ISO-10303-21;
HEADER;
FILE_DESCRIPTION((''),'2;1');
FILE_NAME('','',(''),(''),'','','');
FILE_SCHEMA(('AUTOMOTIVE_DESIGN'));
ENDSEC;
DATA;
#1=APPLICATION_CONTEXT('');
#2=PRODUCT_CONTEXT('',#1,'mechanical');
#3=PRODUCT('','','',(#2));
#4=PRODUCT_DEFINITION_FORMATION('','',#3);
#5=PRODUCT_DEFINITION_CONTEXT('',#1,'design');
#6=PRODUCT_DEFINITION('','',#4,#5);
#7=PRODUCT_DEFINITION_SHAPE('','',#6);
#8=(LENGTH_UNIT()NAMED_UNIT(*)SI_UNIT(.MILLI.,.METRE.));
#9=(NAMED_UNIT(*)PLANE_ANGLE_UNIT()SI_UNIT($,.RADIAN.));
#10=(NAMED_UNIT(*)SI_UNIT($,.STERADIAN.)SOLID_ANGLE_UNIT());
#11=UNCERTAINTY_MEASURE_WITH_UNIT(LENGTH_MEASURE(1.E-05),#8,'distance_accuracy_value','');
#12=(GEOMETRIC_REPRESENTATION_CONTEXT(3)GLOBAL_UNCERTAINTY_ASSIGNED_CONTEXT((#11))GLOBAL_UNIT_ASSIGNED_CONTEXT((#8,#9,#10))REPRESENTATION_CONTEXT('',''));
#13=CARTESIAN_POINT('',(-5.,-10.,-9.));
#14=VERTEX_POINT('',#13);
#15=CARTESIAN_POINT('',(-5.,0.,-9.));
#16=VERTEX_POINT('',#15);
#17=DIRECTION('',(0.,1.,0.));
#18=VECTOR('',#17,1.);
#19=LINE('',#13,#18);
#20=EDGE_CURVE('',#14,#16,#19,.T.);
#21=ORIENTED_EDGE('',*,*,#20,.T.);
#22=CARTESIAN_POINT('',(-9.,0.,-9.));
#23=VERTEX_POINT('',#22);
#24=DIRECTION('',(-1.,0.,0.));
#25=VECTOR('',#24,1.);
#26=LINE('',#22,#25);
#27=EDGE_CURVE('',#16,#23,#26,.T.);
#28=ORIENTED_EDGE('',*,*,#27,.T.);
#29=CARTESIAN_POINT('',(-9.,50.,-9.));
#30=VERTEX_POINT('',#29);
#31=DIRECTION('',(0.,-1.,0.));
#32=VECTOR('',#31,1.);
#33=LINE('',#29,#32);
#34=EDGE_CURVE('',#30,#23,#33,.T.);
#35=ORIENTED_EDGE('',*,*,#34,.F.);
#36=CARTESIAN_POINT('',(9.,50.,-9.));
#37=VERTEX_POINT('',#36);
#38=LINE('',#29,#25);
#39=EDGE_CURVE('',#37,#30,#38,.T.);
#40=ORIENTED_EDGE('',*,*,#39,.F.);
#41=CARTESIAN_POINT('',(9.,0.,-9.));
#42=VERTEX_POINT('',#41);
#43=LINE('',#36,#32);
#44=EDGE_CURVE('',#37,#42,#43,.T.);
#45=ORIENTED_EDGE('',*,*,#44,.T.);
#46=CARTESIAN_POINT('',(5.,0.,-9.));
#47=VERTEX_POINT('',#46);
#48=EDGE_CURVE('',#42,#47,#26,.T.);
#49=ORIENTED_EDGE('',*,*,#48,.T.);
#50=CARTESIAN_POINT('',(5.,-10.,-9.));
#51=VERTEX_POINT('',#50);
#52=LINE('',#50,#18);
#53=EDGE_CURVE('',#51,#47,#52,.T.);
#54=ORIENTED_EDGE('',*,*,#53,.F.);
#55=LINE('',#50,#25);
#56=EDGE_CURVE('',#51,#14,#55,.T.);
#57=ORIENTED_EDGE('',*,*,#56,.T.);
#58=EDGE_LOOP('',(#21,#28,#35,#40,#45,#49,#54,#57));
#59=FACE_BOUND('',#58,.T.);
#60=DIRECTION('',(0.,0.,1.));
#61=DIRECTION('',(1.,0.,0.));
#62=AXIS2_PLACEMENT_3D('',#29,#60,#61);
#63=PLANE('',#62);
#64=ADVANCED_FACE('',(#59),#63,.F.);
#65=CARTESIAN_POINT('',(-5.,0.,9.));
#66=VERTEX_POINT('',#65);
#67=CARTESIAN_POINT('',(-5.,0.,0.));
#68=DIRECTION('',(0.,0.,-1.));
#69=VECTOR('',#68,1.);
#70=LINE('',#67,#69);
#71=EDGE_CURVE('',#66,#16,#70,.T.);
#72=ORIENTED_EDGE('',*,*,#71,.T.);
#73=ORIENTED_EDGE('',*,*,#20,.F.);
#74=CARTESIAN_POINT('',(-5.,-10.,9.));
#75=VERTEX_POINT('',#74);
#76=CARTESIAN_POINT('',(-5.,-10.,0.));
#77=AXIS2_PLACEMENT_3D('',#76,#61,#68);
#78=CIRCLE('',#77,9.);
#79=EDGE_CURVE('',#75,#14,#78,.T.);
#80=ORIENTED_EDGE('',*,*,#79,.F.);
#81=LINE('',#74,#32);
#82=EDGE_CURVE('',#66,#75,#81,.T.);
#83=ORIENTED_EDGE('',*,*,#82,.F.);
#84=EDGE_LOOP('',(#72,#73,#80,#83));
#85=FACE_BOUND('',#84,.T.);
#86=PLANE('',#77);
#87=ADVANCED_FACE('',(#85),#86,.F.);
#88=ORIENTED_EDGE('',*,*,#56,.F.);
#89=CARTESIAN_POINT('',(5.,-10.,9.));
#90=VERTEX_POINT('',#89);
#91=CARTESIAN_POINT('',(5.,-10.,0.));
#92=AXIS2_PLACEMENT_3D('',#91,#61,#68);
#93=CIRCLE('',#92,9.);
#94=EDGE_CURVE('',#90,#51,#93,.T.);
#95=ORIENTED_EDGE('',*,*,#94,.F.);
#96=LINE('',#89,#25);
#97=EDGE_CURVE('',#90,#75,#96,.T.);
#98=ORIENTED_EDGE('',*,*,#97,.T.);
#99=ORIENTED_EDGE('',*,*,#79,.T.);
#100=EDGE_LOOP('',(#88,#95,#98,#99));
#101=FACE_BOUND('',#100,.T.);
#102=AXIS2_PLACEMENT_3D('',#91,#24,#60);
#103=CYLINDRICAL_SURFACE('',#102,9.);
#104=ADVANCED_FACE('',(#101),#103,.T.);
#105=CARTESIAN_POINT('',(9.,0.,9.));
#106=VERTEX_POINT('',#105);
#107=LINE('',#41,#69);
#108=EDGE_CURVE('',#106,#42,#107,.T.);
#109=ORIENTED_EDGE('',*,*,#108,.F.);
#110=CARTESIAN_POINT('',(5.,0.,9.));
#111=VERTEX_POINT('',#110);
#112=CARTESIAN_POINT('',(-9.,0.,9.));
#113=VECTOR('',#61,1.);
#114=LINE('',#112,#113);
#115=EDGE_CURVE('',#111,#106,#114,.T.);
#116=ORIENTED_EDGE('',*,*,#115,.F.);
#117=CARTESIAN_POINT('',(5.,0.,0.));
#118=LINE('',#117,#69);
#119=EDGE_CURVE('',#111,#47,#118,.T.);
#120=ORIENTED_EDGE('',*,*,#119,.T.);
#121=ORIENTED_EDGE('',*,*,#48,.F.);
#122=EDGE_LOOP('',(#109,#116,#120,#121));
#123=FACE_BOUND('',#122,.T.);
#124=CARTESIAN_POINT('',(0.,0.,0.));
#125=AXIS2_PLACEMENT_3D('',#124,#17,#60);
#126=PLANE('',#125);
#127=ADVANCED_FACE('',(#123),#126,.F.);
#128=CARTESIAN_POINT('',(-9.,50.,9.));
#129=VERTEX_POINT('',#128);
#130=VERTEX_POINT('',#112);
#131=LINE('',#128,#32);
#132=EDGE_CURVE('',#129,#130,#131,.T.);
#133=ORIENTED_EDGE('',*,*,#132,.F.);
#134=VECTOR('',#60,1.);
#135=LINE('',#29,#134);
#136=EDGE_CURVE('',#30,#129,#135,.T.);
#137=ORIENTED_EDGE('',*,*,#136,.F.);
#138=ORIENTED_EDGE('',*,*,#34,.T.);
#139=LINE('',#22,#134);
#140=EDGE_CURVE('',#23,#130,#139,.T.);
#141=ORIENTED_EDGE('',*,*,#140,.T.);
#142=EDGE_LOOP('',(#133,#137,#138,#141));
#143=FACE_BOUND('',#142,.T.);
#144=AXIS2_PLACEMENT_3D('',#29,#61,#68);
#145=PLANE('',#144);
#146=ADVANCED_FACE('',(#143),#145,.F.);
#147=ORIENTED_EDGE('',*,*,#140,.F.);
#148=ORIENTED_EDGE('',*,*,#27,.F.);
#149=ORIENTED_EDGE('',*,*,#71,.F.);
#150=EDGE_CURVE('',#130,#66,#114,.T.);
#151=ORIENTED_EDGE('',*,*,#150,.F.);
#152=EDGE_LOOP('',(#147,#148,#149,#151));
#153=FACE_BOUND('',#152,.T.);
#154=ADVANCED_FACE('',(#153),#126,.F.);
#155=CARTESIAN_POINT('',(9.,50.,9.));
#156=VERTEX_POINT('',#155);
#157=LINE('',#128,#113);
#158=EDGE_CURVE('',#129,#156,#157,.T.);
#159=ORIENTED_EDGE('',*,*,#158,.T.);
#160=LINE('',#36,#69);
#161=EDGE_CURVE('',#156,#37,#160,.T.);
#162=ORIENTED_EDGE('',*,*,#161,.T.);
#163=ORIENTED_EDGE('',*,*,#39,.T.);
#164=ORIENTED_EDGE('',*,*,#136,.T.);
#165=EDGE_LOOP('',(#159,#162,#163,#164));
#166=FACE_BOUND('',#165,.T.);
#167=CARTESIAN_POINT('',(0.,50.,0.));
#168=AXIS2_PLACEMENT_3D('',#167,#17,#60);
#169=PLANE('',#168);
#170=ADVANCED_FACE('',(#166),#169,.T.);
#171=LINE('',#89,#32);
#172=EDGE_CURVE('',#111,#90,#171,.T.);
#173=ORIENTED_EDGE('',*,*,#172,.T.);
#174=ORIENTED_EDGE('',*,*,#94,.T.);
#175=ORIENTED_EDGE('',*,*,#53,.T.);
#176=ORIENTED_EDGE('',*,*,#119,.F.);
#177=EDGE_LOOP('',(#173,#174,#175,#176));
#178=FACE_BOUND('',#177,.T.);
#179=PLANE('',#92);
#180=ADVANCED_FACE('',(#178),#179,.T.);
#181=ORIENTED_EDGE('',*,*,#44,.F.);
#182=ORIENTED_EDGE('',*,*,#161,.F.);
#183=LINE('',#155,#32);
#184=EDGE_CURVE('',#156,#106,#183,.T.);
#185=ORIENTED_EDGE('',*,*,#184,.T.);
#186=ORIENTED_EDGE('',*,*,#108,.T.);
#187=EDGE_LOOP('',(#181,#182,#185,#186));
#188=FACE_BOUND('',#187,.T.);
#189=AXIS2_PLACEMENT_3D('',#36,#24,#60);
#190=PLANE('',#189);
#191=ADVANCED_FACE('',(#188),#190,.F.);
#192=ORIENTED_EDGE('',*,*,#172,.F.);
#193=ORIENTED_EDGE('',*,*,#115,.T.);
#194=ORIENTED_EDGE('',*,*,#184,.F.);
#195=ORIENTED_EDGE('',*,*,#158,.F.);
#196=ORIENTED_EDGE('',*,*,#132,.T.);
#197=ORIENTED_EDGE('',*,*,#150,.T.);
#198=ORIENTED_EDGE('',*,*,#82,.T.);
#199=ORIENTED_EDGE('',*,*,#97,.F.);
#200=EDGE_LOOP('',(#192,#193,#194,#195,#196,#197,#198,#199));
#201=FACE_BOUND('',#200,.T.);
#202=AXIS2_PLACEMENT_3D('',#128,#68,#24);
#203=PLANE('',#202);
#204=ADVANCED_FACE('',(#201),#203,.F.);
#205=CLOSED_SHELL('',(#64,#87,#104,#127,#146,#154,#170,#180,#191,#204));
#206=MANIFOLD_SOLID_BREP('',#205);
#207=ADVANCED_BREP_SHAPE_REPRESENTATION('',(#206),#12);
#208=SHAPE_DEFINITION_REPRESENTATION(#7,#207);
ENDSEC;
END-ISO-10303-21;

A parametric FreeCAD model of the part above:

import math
import FreeCAD as App
import Part
import Sketcher
Q = App.Units.Quantity


def add_polygon(sketch, points):
    """Adds a closed chain of lines whose ends are joined by coincident constraints."""
    first, n = sketch.GeometryCount, len(points)
    for a, b in zip(points, points[1:] + points[:1]):
        sketch.addGeometry(Part.LineSegment(App.Vector(*a, 0), App.Vector(*b, 0)), False)
    for i in range(n):
        sketch.addConstraint(Sketcher.Constraint("Coincident", first + i, 2, first + (i + 1) % n, 1))

doc = App.newDocument("Part")
body = doc.addObject("PartDesign::Body", "Body")

# Sketch on XZ plane
sketch1 = body.newObject("Sketcher::SketchObject", "Sketch")
sketch1.AttachmentSupport = (doc.getObject("XZ_Plane"), [""])
sketch1.MapMode = "FlatFace"
add_polygon(sketch1, [(-9, -9), (-9, 9), (9, 9), (9, -9)])  # lines 0-3
sketch1.addConstraint([
    Sketcher.Constraint("Vertical", 0),
    Sketcher.Constraint("Horizontal", 1),
    Sketcher.Constraint("Vertical", 2),
    Sketcher.Constraint("Horizontal", 3),
    Sketcher.Constraint("Symmetric", 0, 2, 2, 2, -1, 1),
    Sketcher.Constraint("Equal", 3, 0),
    Sketcher.Constraint("DistanceX", 1, 1, 1, 2, Q("18 mm")),
])
pad1 = body.newObject("PartDesign::Pad", "Pad")
pad1.Profile = sketch1
pad1.Length = 50
pad1.Reversed = True

# Sketch on YZ plane
sketch2 = body.newObject("Sketcher::SketchObject", "Sketch001")
sketch2.AttachmentSupport = (doc.getObject("YZ_Plane"), [""])
sketch2.MapMode = "FlatFace"
sketch2.addGeometry([
    Part.LineSegment(App.Vector(1, 9, 0), App.Vector(-10, 9, 0)),
    Part.ArcOfCircle(Part.Circle(App.Vector(-10, 0, 0), App.Vector(0, 0, 1), 9), math.radians(90), math.radians(270)),
    Part.LineSegment(App.Vector(-10, -9, 0), App.Vector(1, -9, 0)),
    Part.LineSegment(App.Vector(1, -9, 0), App.Vector(1, 9, 0)),
], False)
sketch2.addConstraint([
    Sketcher.Constraint("Tangent", 0, 2, 1, 1),
    Sketcher.Constraint("Tangent", 1, 2, 2, 1),
    Sketcher.Constraint("Coincident", 2, 2, 3, 1),
    Sketcher.Constraint("Coincident", 3, 2, 0, 1),
    Sketcher.Constraint("Horizontal", 0),
    Sketcher.Constraint("Horizontal", 2),
    Sketcher.Constraint("Vertical", 3),
    Sketcher.Constraint("PointOnObject", 1, 3, -1),
    Sketcher.Constraint("Radius", 1, Q("9 mm")),
    Sketcher.Constraint("DistanceX", 1, 3, -1, 1, Q("10 mm")),
    Sketcher.Constraint("DistanceX", 0, 2, 0, 1, Q("11.03783 mm")),
])
pad2 = body.newObject("PartDesign::Pad", "Pad001")
pad2.Profile = sketch2
pad2.Length = 10
pad2.Midplane = True

doc.recompute()
